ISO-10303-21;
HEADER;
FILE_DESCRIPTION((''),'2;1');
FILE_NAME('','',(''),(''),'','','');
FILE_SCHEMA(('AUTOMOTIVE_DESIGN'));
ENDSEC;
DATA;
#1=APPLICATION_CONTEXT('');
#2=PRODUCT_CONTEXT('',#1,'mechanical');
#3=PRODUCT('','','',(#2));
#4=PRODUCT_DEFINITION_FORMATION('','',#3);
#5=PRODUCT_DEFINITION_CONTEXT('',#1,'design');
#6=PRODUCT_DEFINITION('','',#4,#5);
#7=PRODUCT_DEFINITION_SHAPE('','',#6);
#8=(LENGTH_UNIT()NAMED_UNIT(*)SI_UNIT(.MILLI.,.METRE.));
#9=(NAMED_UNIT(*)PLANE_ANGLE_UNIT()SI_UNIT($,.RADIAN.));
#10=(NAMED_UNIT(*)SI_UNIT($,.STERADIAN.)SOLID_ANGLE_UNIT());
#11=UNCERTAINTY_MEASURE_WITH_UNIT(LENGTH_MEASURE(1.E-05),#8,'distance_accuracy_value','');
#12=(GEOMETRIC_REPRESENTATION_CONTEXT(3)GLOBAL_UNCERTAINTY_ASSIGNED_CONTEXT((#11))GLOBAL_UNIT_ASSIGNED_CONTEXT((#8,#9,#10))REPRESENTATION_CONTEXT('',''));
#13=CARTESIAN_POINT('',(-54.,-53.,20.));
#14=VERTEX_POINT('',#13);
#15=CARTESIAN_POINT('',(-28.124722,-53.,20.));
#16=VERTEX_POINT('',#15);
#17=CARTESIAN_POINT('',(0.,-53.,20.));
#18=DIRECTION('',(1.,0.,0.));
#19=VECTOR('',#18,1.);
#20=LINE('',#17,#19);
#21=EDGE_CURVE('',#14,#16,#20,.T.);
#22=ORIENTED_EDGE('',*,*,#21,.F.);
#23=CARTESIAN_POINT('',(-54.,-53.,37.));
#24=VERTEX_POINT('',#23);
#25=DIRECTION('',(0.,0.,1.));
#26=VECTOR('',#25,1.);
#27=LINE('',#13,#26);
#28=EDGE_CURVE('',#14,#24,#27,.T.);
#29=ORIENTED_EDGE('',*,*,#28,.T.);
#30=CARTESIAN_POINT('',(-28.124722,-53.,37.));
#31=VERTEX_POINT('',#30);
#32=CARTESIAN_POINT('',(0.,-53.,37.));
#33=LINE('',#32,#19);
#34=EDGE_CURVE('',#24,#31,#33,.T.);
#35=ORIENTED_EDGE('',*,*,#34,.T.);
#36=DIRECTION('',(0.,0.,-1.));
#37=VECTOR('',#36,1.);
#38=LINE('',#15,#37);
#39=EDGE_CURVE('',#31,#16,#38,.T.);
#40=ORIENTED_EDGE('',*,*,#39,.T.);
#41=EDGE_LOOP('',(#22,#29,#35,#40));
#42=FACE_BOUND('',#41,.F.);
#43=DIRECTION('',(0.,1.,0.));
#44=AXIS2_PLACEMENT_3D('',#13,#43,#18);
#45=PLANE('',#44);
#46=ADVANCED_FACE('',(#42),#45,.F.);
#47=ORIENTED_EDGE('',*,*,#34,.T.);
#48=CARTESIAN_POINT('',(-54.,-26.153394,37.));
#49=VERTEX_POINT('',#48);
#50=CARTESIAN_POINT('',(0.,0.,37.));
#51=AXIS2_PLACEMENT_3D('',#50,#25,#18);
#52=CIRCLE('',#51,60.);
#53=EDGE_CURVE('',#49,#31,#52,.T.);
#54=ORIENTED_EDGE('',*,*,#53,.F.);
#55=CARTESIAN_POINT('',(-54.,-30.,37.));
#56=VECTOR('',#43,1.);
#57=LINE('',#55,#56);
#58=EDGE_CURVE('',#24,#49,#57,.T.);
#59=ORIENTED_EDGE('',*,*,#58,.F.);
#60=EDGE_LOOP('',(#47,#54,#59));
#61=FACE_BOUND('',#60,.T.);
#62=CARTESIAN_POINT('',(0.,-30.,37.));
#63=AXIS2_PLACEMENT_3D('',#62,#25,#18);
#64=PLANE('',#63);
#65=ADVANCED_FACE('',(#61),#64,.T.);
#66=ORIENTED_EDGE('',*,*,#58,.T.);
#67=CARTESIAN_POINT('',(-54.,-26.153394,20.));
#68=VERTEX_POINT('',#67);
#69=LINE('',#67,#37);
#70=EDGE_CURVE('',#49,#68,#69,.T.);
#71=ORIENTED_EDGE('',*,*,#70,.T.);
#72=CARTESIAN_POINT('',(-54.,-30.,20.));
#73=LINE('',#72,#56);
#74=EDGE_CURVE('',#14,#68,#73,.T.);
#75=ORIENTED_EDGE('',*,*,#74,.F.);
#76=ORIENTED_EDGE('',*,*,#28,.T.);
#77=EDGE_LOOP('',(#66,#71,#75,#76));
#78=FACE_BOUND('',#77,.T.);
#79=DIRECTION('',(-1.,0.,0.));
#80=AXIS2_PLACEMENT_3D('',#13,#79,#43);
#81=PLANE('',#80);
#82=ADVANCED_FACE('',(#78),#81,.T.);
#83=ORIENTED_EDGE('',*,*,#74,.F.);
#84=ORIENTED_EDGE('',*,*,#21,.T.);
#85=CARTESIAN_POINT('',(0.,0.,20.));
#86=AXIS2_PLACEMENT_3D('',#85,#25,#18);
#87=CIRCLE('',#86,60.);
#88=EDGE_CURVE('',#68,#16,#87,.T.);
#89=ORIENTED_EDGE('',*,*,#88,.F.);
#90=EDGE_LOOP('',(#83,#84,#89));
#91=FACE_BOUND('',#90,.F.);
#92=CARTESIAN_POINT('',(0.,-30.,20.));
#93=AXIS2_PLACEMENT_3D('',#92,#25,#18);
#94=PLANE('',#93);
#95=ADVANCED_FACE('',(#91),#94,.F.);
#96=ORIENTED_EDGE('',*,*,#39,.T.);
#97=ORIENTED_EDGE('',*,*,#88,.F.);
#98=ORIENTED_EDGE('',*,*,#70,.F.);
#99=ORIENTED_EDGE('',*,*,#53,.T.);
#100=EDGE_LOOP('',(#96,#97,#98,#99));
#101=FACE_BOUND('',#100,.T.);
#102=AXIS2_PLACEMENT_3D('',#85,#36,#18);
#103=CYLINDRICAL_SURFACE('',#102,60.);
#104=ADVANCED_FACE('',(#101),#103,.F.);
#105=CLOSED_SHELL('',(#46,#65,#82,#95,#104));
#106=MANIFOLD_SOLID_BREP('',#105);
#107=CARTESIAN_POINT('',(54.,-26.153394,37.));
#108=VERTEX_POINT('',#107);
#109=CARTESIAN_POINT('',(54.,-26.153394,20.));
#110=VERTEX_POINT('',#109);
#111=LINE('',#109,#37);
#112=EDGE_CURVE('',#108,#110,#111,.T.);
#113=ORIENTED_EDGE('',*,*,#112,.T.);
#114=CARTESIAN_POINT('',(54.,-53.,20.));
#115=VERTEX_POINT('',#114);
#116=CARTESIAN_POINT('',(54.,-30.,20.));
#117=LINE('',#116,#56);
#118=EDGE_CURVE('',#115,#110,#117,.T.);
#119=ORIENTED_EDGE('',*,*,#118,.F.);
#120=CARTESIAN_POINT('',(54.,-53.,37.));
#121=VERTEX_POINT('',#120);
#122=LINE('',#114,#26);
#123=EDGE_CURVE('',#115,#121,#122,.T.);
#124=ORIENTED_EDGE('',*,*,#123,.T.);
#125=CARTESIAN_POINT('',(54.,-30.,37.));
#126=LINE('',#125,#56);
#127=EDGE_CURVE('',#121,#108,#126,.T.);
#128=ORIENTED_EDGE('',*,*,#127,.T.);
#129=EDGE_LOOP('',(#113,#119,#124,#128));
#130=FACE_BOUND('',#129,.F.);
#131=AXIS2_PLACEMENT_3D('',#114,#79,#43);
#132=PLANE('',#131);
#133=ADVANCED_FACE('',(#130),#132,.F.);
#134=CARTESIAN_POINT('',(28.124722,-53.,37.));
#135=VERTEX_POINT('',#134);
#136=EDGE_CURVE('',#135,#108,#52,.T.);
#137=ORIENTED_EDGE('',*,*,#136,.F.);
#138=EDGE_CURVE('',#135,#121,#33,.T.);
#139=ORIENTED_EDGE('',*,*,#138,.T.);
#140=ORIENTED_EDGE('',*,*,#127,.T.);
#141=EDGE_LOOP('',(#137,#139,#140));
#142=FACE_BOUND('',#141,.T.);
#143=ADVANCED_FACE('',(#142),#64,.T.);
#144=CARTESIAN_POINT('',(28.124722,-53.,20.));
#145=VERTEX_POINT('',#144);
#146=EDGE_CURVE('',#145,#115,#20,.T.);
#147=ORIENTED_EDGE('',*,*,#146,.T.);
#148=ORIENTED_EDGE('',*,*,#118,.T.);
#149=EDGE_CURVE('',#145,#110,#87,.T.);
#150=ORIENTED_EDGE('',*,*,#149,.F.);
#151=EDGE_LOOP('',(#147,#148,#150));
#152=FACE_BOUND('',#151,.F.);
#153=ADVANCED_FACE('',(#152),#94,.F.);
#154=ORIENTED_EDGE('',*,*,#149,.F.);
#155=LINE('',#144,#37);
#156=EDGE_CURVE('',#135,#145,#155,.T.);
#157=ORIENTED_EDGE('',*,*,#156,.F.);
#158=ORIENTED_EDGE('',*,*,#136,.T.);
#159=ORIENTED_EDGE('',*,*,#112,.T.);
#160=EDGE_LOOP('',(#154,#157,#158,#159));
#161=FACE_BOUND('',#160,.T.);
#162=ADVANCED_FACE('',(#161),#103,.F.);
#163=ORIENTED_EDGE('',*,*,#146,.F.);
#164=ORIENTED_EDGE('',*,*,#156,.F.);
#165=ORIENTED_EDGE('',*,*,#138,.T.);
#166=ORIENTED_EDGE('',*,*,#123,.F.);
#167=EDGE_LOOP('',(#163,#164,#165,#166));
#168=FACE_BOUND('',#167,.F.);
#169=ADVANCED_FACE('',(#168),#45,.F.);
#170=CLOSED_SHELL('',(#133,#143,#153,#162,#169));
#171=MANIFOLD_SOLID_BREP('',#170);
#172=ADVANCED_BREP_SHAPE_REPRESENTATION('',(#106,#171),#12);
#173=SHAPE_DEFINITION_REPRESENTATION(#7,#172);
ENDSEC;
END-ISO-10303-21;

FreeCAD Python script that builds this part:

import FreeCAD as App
import Part
import Sketcher

V = App.Vector
Q = App.Units.Quantity


def add_polygon(sketch, points):
    """Adds a closed chain of lines whose ends are joined by coincident constraints."""
    first, n = sketch.GeometryCount, len(points)
    for a, b in zip(points, points[1:] + points[:1]):
        sketch.addGeometry(Part.LineSegment(App.Vector(*a, 0), App.Vector(*b, 0)), False)
    for i in range(n):
        sketch.addConstraint(Sketcher.Constraint("Coincident", first + i, 2, first + (i + 1) % n, 1))

doc = App.newDocument("Part")
body = doc.addObject("PartDesign::Body", "Body")

sketch1 = body.newObject("Sketcher::SketchObject", "Sketch")
sketch1.AttachmentSupport = (doc.getObject("YZ_Plane"), [""])
sketch1.MapMode = "FlatFace"
sketch1.AttachmentOffset = App.Placement(V(0, 0, -4), App.Rotation())
sketch1.addGeometry(Part.Circle(V(3, 3, 0), V(0, 0, 1), 1.5), False)
sketch1.addConstraint([
    Sketcher.Constraint("Diameter", 0, Q("3 mm")),
    Sketcher.Constraint("DistanceX", -1, 1, 0, 3, Q("3 mm")),
    Sketcher.Constraint("DistanceY", -1, 1, 0, 3, Q("3 mm")),
])
pad1 = body.newObject("PartDesign::Pad", "Pad")
pad1.Profile = sketch1
pad1.Length = 4
body2 = doc.addObject("PartDesign::Body", "Body001")

sketch2 = body2.newObject("Sketcher::SketchObject", "Sketch001")
sketch2.AttachmentSupport = (doc.getObject("YZ_Plane001"), [""])
sketch2.MapMode = "FlatFace"
sketch2.AttachmentOffset = App.Placement(V(0, 0, 2), App.Rotation())
sketch2.addGeometry(Part.Circle(V(3, 3, 0), V(0, 0, 1), 1.5), False)
sketch2.addConstraint([
    Sketcher.Constraint("Diameter", 0, Q("3 mm")),
    Sketcher.Constraint("DistanceX", -1, 1, 0, 3, Q("3 mm")),
    Sketcher.Constraint("DistanceY", -1, 1, 0, 3, Q("3 mm")),
])
pad2 = body2.newObject("PartDesign::Pad", "Pad001")
pad2.Profile = sketch2
pad2.Length = 100
body3 = doc.addObject("PartDesign::Body", "Body002")

sketch3 = body3.newObject("Sketcher::SketchObject", "Sketch002")
sketch3.AttachmentSupport = (doc.getObject("XY_Plane002"), [""])
sketch3.MapMode = "FlatFace"
add_polygon(sketch3, [(0, 6), (0, 0), (2, 0), (2, 6)])
sketch3.addConstraint([
    Sketcher.Constraint("Vertical", 0),
    Sketcher.Constraint("Horizontal", 1),
    Sketcher.Constraint("Vertical", 2),
    Sketcher.Constraint("Horizontal", 3),
    Sketcher.Constraint("Coincident", 0, 2, -1, 1),
    Sketcher.Constraint("DistanceX", 1, 1, 1, 2, Q("2 mm")),
    Sketcher.Constraint("DistanceY", 0, 2, 0, 1, Q("6 mm")),
])
pad3 = body3.newObject("PartDesign::Pad", "Pad002")
pad3.Profile = sketch3
pad3.Length = 6
doc.recompute()

boolean = body3.newObject("PartDesign::Boolean", "Boolean")
boolean.Type = "Fuse"
boolean.addObjects([body])
doc.recompute()

boolean2 = body3.newObject("PartDesign::Boolean", "Boolean001")
boolean2.Type = "Fuse"
boolean2.addObjects([body2])
body4 = doc.addObject("PartDesign::Body", "Body003")
doc.recompute()

body3.Placement = App.Placement(V(-54, 166, 27), App.Rotation(V(0, 0, -1), 90))
boolean3 = body4.newObject("PartDesign::Boolean", "Boolean002")
boolean3.Type = "Fuse"
boolean3.addObjects([body3])
body5 = doc.addObject("PartDesign::Body", "Body004")

sketch4 = body5.newObject("Sketcher::SketchObject", "Sketch003")
sketch4.AttachmentSupport = (doc.getObject("YZ_Plane004"), [""])
sketch4.MapMode = "FlatFace"
sketch4.AttachmentOffset = App.Placement(V(0, 0, -4), App.Rotation())
sketch4.addGeometry(Part.Circle(V(3, 3, 0), V(0, 0, 1), 1.5), False)
sketch4.addConstraint([
    Sketcher.Constraint("Diameter", 0, Q("3 mm")),
    Sketcher.Constraint("DistanceX", -1, 1, 0, 3, Q("3 mm")),
    Sketcher.Constraint("DistanceY", -1, 1, 0, 3, Q("3 mm")),
])
pad4 = body5.newObject("PartDesign::Pad", "Pad003")
pad4.Profile = sketch4
pad4.Length = 4
body6 = doc.addObject("PartDesign::Body", "Body005")

sketch5 = body6.newObject("Sketcher::SketchObject", "Sketch004")
sketch5.AttachmentSupport = (doc.getObject("YZ_Plane005"), [""])
sketch5.MapMode = "FlatFace"
sketch5.AttachmentOffset = App.Placement(V(0, 0, 2), App.Rotation())
sketch5.addGeometry(Part.Circle(V(3, 3, 0), V(0, 0, 1), 1.5), False)
sketch5.addConstraint([
    Sketcher.Constraint("Diameter", 0, Q("3 mm")),
    Sketcher.Constraint("DistanceX", -1, 1, 0, 3, Q("3 mm")),
    Sketcher.Constraint("DistanceY", -1, 1, 0, 3, Q("3 mm")),
])
pad5 = body6.newObject("PartDesign::Pad", "Pad004")
pad5.Profile = sketch5
pad5.Length = 100
body7 = doc.addObject("PartDesign::Body", "Body006")

sketch6 = body7.newObject("Sketcher::SketchObject", "Sketch005")
sketch6.AttachmentSupport = (doc.getObject("XY_Plane006"), [""])
sketch6.MapMode = "FlatFace"
add_polygon(sketch6, [(0, 6), (0, 0), (2, 0), (2, 6)])
sketch6.addConstraint([
    Sketcher.Constraint("Vertical", 0),
    Sketcher.Constraint("Horizontal", 1),
    Sketcher.Constraint("Vertical", 2),
    Sketcher.Constraint("Horizontal", 3),
    Sketcher.Constraint("Coincident", 0, 2, -1, 1),
    Sketcher.Constraint("DistanceX", 1, 1, 1, 2, Q("2 mm")),
    Sketcher.Constraint("DistanceY", 0, 2, 0, 1, Q("6 mm")),
])
pad6 = body7.newObject("PartDesign::Pad", "Pad005")
pad6.Profile = sketch6
pad6.Length = 6
doc.recompute()

boolean4 = body7.newObject("PartDesign::Boolean", "Boolean003")
boolean4.Type = "Fuse"
boolean4.addObjects([body5])
doc.recompute()

boolean5 = body7.newObject("PartDesign::Boolean", "Boolean004")
boolean5.Type = "Fuse"
boolean5.addObjects([body6])
body8 = doc.addObject("PartDesign::Body", "Body007")
body8.AllowCompound = True
doc.recompute()

body7.Placement = App.Placement(V(48, 166, 27), App.Rotation(V(0, 0, -1), 90))
boolean6 = body8.newObject("PartDesign::Boolean", "Boolean005")
boolean6.Type = "Fuse"
boolean6.addObjects([body7])
doc.recompute()

boolean7 = body8.newObject("PartDesign::Boolean", "Boolean006")
boolean7.Type = "Fuse"
boolean7.addObjects([body4])
body9 = doc.addObject("PartDesign::Body", "Body008")

sketch7 = body9.newObject("Sketcher::SketchObject", "Sketch006")
sketch7.AttachmentSupport = (doc.getObject("XY_Plane008"), [""])
sketch7.MapMode = "FlatFace"
sketch7.AttachmentOffset = App.Placement(V(0, 0, 20), App.Rotation())
sketch7.addGeometry(Part.Circle(V(0, 0, 0), V(0, 0, 1), 60), False)
sketch7.addConstraint([
    Sketcher.Constraint("Coincident", 0, 3, -1, 1),
    Sketcher.Constraint("Diameter", 0, Q("120 mm")),
])
pad7 = body9.newObject("PartDesign::Pad", "Pad006")
pad7.Profile = sketch7
pad7.Length = 17
body10 = doc.addObject("PartDesign::Body", "Body009")
body10.AllowCompound = True

sketch8 = body10.newObject("Sketcher::SketchObject", "Sketch007")
sketch8.AttachmentSupport = (doc.getObject("XY_Plane009"), [""])
sketch8.MapMode = "FlatFace"
sketch8.AttachmentOffset = App.Placement(V(0, 0, 20), App.Rotation())
add_polygon(sketch8, [(-54, -7), (-54, -53), (54, -53), (54, -7)])
sketch8.addConstraint([
    Sketcher.Constraint("Vertical", 0),
    Sketcher.Constraint("Horizontal", 1),
    Sketcher.Constraint("Vertical", 2),
    Sketcher.Constraint("Horizontal", 3),
    Sketcher.Constraint("DistanceX", 1, 1, 1, 2, Q("108 mm")),
    Sketcher.Constraint("DistanceY", 0, 2, 0, 1, Q("46 mm")),
    Sketcher.Constraint("DistanceX", 0, 2, -1, 1, Q("54 mm")),
    Sketcher.Constraint("DistanceY", 0, 2, -1, 1, Q("53 mm")),
])
pad8 = body10.newObject("PartDesign::Pad", "Pad007")
pad8.Profile = sketch8
pad8.Length = 17
doc.recompute()

boolean8 = body10.newObject("PartDesign::Boolean", "Boolean007")
boolean8.Type = "Cut"
boolean8.addObjects([body9])
doc.recompute()

boolean9 = body10.newObject("PartDesign::Boolean", "Boolean008")
boolean9.Type = "Cut"
boolean9.addObjects([body8])

doc.recompute()
